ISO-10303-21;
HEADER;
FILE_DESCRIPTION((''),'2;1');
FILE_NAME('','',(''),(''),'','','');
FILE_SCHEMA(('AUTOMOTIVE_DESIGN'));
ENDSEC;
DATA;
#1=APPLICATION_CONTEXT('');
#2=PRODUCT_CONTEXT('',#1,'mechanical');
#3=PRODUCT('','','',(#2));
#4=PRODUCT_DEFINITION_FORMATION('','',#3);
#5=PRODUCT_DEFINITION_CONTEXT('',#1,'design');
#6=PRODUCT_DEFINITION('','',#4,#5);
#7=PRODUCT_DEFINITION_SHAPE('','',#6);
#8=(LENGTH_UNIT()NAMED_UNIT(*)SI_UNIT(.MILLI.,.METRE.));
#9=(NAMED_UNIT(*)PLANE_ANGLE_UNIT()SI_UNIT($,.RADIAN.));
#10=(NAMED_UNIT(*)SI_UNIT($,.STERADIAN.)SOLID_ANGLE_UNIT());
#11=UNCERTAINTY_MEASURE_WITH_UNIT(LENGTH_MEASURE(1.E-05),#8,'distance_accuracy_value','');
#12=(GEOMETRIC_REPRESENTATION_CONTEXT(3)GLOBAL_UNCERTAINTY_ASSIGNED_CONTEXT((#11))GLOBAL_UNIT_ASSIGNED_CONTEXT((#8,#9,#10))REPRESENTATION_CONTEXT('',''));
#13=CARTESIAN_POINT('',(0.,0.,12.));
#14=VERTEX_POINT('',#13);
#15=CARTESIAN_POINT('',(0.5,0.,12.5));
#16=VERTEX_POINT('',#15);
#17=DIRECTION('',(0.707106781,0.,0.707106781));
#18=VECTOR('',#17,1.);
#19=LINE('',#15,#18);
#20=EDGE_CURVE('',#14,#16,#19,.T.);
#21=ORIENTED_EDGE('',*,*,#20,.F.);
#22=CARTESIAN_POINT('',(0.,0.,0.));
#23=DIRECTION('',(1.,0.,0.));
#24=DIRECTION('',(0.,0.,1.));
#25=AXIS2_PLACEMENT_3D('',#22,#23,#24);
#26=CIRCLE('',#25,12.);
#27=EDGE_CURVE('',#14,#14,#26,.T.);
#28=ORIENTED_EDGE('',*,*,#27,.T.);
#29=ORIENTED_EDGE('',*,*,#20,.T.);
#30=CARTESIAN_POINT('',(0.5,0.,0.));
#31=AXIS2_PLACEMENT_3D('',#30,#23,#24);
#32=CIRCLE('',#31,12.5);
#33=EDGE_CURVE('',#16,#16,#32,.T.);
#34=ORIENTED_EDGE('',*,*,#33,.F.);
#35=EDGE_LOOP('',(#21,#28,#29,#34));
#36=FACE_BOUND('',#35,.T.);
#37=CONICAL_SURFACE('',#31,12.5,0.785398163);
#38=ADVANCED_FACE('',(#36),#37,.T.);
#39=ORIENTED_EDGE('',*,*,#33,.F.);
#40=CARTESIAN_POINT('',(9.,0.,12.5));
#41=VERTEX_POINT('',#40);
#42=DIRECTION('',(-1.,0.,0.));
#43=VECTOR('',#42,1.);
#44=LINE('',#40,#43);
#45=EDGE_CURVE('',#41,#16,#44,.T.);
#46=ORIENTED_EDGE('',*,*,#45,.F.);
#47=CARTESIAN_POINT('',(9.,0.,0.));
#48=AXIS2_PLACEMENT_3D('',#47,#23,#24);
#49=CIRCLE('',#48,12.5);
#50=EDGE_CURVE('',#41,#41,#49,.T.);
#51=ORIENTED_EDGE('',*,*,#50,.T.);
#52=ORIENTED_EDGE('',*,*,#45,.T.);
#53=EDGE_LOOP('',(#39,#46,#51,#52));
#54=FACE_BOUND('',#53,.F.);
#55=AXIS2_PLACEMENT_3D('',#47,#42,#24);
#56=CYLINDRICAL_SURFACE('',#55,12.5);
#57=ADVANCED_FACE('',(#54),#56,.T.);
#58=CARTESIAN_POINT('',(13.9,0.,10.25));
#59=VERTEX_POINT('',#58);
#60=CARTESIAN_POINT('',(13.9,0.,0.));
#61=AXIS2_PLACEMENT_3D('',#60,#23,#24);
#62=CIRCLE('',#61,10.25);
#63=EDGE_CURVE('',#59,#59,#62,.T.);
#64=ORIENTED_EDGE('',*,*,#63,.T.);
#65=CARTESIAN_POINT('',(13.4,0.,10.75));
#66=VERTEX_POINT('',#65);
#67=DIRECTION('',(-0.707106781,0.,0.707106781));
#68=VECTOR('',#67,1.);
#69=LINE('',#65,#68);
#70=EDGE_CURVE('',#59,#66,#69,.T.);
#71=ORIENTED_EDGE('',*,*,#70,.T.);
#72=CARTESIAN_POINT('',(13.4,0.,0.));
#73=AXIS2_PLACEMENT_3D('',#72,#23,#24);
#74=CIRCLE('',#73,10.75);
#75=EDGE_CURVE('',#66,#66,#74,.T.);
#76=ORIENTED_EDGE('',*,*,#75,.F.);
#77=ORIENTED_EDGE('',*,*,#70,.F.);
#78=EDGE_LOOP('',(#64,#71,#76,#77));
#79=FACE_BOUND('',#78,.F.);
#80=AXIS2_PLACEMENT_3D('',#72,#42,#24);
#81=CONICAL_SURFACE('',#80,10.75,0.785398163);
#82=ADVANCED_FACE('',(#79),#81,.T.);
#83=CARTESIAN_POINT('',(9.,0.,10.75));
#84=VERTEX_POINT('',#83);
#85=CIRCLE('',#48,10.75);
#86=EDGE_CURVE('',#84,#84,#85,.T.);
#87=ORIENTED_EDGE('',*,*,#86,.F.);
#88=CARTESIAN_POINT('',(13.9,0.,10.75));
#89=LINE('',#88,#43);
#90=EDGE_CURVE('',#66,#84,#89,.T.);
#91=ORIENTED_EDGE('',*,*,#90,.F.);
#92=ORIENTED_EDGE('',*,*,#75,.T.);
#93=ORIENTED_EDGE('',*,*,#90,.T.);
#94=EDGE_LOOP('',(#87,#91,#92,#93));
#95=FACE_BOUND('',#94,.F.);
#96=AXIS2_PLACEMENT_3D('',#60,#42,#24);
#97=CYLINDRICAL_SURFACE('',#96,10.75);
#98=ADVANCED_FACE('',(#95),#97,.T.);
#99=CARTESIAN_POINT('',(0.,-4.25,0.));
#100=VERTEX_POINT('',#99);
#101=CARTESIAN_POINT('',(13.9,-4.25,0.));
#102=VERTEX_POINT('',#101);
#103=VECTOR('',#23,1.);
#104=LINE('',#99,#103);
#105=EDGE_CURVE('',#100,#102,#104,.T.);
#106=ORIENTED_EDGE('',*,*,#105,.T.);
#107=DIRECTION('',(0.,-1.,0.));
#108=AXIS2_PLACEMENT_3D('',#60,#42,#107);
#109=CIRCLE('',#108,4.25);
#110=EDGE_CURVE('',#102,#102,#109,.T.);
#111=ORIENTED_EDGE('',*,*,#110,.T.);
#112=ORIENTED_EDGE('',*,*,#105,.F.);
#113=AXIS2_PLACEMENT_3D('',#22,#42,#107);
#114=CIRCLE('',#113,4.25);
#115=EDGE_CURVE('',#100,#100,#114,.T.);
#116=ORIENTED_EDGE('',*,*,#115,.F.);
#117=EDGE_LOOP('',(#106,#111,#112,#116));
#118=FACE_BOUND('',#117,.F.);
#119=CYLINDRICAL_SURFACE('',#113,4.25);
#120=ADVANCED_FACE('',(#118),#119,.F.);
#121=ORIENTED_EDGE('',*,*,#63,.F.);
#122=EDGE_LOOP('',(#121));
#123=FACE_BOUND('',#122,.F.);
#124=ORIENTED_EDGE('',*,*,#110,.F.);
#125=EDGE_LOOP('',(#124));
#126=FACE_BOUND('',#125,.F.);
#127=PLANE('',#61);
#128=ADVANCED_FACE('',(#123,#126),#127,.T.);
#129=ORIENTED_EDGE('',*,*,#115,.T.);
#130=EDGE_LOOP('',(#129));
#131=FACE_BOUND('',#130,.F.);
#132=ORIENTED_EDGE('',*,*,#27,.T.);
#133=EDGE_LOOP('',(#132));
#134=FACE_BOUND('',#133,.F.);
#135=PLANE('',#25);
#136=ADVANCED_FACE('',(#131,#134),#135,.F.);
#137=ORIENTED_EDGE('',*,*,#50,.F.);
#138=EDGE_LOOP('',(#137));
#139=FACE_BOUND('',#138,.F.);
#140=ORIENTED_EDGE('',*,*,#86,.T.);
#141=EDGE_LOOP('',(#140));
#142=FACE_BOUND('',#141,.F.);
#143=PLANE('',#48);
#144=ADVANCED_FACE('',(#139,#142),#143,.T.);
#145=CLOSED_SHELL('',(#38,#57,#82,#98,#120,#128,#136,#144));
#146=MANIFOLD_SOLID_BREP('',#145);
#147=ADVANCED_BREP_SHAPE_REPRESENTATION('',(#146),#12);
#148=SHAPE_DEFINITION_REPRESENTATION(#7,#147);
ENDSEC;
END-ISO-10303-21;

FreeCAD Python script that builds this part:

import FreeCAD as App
import Part
import Sketcher
Q = App.Units.Quantity


def edges_at(feature, points):
    """Names of the edges that pass closest to the given points."""
    edges = feature.Shape.Edges
    near = lambda p: min(range(len(edges)), key=lambda i: edges[i].distToShape(Part.Vertex(*p))[0])
    return sorted({f"Edge{near(p) + 1}" for p in points})


def add_polygon(sketch, points):
    """Adds a closed chain of lines whose ends are joined by coincident constraints."""
    first, n = sketch.GeometryCount, len(points)
    for a, b in zip(points, points[1:] + points[:1]):
        sketch.addGeometry(Part.LineSegment(App.Vector(*a, 0), App.Vector(*b, 0)), False)
    for i in range(n):
        sketch.addConstraint(Sketcher.Constraint("Coincident", first + i, 2, first + (i + 1) % n, 1))

doc = App.newDocument("Part")
params = doc.addObject("Spreadsheet::Sheet", "Params")
for row, (alias, value) in enumerate([
    ("sketch1_width", "9 mm"),
    ("sketch1_width2", "13.9 mm"),
    ("sketch1_height", "12.5 mm"),
    ("sketch1_height2", "10.75 mm"),
    ("revolution_angle", "360 deg"),
    ("sketch2_diameter", "8.5 mm"),
    ("chamfer_size", "0.5 mm"),
], start=1):
    params.set(f"A{row}", alias)
    params.set(f"B{row}", "=" + value)
    params.setAlias(f"B{row}", alias)

body = doc.addObject("PartDesign::Body", "Body")

# Sketch on XZ plane
sketch1 = body.newObject("Sketcher::SketchObject", "Sketch")
sketch1.AttachmentSupport = (doc.getObject("XZ_Plane"), [""])
sketch1.MapMode = "FlatFace"
add_polygon(sketch1, [(0, 12.5), (0, 0), (13.9, 0), (13.9, 10.8), (9, 10.8), (9, 12.5)])  # lines 0-5
sketch1.addConstraint([
    Sketcher.Constraint("Vertical", 0),
    Sketcher.Constraint("Horizontal", 1),
    Sketcher.Constraint("Vertical", 2),
    Sketcher.Constraint("Horizontal", 3),
    Sketcher.Constraint("Vertical", 4),
    Sketcher.Constraint("Horizontal", 5),
    Sketcher.Constraint("Coincident", 0, 2, -1, 1),
    Sketcher.Constraint("DistanceX", 5, 2, 5, 1, Q("9 mm")),
    Sketcher.Constraint("DistanceX", 1, 1, 1, 2, Q("13.9 mm")),
    Sketcher.Constraint("DistanceY", 0, 2, 0, 1, Q("12.5 mm")),
    Sketcher.Constraint("DistanceY", 2, 1, 2, 2, Q("10.75 mm")),
])
sketch1.setExpression("Constraints[13]", "Params.sketch1_width")
sketch1.setExpression("Constraints[14]", "Params.sketch1_width2")
sketch1.setExpression("Constraints[15]", "Params.sketch1_height")
sketch1.setExpression("Constraints[16]", "Params.sketch1_height2")
revolution = body.newObject("PartDesign::Revolution", "Revolution")
revolution.Profile = sketch1
revolution.ReferenceAxis = (sketch1, ["H_Axis"])
revolution.setExpression("Angle", "Params.revolution_angle")

# Sketch on YZ plane
sketch2 = body.newObject("Sketcher::SketchObject", "Sketch001")
sketch2.AttachmentSupport = (doc.getObject("YZ_Plane"), [""])
sketch2.MapMode = "FlatFace"
sketch2.addGeometry(Part.Circle(App.Vector(0, 0, 0), App.Vector(0, 0, 1), 4.2), False)
sketch2.addConstraint([
    Sketcher.Constraint("Coincident", 0, 3, -1, 1),
    Sketcher.Constraint("Diameter", 0, Q("8.5 mm")),
])
sketch2.setExpression("Constraints[1]", "Params.sketch2_diameter")
pocket1 = body.newObject("PartDesign::Pocket", "Pocket")
pocket1.Profile = sketch2
pocket1.Type = "ThroughAll"
pocket1.Reversed = True
doc.recompute()

chamfer = body.newObject("PartDesign::Chamfer", "Chamfer")
chamfer.Base = (pocket1, edges_at(pocket1, [(13.9, 0, -10.75), (0, 0, -12.5)]))
chamfer.setExpression("Size", "Params.chamfer_size")

doc.recompute()
